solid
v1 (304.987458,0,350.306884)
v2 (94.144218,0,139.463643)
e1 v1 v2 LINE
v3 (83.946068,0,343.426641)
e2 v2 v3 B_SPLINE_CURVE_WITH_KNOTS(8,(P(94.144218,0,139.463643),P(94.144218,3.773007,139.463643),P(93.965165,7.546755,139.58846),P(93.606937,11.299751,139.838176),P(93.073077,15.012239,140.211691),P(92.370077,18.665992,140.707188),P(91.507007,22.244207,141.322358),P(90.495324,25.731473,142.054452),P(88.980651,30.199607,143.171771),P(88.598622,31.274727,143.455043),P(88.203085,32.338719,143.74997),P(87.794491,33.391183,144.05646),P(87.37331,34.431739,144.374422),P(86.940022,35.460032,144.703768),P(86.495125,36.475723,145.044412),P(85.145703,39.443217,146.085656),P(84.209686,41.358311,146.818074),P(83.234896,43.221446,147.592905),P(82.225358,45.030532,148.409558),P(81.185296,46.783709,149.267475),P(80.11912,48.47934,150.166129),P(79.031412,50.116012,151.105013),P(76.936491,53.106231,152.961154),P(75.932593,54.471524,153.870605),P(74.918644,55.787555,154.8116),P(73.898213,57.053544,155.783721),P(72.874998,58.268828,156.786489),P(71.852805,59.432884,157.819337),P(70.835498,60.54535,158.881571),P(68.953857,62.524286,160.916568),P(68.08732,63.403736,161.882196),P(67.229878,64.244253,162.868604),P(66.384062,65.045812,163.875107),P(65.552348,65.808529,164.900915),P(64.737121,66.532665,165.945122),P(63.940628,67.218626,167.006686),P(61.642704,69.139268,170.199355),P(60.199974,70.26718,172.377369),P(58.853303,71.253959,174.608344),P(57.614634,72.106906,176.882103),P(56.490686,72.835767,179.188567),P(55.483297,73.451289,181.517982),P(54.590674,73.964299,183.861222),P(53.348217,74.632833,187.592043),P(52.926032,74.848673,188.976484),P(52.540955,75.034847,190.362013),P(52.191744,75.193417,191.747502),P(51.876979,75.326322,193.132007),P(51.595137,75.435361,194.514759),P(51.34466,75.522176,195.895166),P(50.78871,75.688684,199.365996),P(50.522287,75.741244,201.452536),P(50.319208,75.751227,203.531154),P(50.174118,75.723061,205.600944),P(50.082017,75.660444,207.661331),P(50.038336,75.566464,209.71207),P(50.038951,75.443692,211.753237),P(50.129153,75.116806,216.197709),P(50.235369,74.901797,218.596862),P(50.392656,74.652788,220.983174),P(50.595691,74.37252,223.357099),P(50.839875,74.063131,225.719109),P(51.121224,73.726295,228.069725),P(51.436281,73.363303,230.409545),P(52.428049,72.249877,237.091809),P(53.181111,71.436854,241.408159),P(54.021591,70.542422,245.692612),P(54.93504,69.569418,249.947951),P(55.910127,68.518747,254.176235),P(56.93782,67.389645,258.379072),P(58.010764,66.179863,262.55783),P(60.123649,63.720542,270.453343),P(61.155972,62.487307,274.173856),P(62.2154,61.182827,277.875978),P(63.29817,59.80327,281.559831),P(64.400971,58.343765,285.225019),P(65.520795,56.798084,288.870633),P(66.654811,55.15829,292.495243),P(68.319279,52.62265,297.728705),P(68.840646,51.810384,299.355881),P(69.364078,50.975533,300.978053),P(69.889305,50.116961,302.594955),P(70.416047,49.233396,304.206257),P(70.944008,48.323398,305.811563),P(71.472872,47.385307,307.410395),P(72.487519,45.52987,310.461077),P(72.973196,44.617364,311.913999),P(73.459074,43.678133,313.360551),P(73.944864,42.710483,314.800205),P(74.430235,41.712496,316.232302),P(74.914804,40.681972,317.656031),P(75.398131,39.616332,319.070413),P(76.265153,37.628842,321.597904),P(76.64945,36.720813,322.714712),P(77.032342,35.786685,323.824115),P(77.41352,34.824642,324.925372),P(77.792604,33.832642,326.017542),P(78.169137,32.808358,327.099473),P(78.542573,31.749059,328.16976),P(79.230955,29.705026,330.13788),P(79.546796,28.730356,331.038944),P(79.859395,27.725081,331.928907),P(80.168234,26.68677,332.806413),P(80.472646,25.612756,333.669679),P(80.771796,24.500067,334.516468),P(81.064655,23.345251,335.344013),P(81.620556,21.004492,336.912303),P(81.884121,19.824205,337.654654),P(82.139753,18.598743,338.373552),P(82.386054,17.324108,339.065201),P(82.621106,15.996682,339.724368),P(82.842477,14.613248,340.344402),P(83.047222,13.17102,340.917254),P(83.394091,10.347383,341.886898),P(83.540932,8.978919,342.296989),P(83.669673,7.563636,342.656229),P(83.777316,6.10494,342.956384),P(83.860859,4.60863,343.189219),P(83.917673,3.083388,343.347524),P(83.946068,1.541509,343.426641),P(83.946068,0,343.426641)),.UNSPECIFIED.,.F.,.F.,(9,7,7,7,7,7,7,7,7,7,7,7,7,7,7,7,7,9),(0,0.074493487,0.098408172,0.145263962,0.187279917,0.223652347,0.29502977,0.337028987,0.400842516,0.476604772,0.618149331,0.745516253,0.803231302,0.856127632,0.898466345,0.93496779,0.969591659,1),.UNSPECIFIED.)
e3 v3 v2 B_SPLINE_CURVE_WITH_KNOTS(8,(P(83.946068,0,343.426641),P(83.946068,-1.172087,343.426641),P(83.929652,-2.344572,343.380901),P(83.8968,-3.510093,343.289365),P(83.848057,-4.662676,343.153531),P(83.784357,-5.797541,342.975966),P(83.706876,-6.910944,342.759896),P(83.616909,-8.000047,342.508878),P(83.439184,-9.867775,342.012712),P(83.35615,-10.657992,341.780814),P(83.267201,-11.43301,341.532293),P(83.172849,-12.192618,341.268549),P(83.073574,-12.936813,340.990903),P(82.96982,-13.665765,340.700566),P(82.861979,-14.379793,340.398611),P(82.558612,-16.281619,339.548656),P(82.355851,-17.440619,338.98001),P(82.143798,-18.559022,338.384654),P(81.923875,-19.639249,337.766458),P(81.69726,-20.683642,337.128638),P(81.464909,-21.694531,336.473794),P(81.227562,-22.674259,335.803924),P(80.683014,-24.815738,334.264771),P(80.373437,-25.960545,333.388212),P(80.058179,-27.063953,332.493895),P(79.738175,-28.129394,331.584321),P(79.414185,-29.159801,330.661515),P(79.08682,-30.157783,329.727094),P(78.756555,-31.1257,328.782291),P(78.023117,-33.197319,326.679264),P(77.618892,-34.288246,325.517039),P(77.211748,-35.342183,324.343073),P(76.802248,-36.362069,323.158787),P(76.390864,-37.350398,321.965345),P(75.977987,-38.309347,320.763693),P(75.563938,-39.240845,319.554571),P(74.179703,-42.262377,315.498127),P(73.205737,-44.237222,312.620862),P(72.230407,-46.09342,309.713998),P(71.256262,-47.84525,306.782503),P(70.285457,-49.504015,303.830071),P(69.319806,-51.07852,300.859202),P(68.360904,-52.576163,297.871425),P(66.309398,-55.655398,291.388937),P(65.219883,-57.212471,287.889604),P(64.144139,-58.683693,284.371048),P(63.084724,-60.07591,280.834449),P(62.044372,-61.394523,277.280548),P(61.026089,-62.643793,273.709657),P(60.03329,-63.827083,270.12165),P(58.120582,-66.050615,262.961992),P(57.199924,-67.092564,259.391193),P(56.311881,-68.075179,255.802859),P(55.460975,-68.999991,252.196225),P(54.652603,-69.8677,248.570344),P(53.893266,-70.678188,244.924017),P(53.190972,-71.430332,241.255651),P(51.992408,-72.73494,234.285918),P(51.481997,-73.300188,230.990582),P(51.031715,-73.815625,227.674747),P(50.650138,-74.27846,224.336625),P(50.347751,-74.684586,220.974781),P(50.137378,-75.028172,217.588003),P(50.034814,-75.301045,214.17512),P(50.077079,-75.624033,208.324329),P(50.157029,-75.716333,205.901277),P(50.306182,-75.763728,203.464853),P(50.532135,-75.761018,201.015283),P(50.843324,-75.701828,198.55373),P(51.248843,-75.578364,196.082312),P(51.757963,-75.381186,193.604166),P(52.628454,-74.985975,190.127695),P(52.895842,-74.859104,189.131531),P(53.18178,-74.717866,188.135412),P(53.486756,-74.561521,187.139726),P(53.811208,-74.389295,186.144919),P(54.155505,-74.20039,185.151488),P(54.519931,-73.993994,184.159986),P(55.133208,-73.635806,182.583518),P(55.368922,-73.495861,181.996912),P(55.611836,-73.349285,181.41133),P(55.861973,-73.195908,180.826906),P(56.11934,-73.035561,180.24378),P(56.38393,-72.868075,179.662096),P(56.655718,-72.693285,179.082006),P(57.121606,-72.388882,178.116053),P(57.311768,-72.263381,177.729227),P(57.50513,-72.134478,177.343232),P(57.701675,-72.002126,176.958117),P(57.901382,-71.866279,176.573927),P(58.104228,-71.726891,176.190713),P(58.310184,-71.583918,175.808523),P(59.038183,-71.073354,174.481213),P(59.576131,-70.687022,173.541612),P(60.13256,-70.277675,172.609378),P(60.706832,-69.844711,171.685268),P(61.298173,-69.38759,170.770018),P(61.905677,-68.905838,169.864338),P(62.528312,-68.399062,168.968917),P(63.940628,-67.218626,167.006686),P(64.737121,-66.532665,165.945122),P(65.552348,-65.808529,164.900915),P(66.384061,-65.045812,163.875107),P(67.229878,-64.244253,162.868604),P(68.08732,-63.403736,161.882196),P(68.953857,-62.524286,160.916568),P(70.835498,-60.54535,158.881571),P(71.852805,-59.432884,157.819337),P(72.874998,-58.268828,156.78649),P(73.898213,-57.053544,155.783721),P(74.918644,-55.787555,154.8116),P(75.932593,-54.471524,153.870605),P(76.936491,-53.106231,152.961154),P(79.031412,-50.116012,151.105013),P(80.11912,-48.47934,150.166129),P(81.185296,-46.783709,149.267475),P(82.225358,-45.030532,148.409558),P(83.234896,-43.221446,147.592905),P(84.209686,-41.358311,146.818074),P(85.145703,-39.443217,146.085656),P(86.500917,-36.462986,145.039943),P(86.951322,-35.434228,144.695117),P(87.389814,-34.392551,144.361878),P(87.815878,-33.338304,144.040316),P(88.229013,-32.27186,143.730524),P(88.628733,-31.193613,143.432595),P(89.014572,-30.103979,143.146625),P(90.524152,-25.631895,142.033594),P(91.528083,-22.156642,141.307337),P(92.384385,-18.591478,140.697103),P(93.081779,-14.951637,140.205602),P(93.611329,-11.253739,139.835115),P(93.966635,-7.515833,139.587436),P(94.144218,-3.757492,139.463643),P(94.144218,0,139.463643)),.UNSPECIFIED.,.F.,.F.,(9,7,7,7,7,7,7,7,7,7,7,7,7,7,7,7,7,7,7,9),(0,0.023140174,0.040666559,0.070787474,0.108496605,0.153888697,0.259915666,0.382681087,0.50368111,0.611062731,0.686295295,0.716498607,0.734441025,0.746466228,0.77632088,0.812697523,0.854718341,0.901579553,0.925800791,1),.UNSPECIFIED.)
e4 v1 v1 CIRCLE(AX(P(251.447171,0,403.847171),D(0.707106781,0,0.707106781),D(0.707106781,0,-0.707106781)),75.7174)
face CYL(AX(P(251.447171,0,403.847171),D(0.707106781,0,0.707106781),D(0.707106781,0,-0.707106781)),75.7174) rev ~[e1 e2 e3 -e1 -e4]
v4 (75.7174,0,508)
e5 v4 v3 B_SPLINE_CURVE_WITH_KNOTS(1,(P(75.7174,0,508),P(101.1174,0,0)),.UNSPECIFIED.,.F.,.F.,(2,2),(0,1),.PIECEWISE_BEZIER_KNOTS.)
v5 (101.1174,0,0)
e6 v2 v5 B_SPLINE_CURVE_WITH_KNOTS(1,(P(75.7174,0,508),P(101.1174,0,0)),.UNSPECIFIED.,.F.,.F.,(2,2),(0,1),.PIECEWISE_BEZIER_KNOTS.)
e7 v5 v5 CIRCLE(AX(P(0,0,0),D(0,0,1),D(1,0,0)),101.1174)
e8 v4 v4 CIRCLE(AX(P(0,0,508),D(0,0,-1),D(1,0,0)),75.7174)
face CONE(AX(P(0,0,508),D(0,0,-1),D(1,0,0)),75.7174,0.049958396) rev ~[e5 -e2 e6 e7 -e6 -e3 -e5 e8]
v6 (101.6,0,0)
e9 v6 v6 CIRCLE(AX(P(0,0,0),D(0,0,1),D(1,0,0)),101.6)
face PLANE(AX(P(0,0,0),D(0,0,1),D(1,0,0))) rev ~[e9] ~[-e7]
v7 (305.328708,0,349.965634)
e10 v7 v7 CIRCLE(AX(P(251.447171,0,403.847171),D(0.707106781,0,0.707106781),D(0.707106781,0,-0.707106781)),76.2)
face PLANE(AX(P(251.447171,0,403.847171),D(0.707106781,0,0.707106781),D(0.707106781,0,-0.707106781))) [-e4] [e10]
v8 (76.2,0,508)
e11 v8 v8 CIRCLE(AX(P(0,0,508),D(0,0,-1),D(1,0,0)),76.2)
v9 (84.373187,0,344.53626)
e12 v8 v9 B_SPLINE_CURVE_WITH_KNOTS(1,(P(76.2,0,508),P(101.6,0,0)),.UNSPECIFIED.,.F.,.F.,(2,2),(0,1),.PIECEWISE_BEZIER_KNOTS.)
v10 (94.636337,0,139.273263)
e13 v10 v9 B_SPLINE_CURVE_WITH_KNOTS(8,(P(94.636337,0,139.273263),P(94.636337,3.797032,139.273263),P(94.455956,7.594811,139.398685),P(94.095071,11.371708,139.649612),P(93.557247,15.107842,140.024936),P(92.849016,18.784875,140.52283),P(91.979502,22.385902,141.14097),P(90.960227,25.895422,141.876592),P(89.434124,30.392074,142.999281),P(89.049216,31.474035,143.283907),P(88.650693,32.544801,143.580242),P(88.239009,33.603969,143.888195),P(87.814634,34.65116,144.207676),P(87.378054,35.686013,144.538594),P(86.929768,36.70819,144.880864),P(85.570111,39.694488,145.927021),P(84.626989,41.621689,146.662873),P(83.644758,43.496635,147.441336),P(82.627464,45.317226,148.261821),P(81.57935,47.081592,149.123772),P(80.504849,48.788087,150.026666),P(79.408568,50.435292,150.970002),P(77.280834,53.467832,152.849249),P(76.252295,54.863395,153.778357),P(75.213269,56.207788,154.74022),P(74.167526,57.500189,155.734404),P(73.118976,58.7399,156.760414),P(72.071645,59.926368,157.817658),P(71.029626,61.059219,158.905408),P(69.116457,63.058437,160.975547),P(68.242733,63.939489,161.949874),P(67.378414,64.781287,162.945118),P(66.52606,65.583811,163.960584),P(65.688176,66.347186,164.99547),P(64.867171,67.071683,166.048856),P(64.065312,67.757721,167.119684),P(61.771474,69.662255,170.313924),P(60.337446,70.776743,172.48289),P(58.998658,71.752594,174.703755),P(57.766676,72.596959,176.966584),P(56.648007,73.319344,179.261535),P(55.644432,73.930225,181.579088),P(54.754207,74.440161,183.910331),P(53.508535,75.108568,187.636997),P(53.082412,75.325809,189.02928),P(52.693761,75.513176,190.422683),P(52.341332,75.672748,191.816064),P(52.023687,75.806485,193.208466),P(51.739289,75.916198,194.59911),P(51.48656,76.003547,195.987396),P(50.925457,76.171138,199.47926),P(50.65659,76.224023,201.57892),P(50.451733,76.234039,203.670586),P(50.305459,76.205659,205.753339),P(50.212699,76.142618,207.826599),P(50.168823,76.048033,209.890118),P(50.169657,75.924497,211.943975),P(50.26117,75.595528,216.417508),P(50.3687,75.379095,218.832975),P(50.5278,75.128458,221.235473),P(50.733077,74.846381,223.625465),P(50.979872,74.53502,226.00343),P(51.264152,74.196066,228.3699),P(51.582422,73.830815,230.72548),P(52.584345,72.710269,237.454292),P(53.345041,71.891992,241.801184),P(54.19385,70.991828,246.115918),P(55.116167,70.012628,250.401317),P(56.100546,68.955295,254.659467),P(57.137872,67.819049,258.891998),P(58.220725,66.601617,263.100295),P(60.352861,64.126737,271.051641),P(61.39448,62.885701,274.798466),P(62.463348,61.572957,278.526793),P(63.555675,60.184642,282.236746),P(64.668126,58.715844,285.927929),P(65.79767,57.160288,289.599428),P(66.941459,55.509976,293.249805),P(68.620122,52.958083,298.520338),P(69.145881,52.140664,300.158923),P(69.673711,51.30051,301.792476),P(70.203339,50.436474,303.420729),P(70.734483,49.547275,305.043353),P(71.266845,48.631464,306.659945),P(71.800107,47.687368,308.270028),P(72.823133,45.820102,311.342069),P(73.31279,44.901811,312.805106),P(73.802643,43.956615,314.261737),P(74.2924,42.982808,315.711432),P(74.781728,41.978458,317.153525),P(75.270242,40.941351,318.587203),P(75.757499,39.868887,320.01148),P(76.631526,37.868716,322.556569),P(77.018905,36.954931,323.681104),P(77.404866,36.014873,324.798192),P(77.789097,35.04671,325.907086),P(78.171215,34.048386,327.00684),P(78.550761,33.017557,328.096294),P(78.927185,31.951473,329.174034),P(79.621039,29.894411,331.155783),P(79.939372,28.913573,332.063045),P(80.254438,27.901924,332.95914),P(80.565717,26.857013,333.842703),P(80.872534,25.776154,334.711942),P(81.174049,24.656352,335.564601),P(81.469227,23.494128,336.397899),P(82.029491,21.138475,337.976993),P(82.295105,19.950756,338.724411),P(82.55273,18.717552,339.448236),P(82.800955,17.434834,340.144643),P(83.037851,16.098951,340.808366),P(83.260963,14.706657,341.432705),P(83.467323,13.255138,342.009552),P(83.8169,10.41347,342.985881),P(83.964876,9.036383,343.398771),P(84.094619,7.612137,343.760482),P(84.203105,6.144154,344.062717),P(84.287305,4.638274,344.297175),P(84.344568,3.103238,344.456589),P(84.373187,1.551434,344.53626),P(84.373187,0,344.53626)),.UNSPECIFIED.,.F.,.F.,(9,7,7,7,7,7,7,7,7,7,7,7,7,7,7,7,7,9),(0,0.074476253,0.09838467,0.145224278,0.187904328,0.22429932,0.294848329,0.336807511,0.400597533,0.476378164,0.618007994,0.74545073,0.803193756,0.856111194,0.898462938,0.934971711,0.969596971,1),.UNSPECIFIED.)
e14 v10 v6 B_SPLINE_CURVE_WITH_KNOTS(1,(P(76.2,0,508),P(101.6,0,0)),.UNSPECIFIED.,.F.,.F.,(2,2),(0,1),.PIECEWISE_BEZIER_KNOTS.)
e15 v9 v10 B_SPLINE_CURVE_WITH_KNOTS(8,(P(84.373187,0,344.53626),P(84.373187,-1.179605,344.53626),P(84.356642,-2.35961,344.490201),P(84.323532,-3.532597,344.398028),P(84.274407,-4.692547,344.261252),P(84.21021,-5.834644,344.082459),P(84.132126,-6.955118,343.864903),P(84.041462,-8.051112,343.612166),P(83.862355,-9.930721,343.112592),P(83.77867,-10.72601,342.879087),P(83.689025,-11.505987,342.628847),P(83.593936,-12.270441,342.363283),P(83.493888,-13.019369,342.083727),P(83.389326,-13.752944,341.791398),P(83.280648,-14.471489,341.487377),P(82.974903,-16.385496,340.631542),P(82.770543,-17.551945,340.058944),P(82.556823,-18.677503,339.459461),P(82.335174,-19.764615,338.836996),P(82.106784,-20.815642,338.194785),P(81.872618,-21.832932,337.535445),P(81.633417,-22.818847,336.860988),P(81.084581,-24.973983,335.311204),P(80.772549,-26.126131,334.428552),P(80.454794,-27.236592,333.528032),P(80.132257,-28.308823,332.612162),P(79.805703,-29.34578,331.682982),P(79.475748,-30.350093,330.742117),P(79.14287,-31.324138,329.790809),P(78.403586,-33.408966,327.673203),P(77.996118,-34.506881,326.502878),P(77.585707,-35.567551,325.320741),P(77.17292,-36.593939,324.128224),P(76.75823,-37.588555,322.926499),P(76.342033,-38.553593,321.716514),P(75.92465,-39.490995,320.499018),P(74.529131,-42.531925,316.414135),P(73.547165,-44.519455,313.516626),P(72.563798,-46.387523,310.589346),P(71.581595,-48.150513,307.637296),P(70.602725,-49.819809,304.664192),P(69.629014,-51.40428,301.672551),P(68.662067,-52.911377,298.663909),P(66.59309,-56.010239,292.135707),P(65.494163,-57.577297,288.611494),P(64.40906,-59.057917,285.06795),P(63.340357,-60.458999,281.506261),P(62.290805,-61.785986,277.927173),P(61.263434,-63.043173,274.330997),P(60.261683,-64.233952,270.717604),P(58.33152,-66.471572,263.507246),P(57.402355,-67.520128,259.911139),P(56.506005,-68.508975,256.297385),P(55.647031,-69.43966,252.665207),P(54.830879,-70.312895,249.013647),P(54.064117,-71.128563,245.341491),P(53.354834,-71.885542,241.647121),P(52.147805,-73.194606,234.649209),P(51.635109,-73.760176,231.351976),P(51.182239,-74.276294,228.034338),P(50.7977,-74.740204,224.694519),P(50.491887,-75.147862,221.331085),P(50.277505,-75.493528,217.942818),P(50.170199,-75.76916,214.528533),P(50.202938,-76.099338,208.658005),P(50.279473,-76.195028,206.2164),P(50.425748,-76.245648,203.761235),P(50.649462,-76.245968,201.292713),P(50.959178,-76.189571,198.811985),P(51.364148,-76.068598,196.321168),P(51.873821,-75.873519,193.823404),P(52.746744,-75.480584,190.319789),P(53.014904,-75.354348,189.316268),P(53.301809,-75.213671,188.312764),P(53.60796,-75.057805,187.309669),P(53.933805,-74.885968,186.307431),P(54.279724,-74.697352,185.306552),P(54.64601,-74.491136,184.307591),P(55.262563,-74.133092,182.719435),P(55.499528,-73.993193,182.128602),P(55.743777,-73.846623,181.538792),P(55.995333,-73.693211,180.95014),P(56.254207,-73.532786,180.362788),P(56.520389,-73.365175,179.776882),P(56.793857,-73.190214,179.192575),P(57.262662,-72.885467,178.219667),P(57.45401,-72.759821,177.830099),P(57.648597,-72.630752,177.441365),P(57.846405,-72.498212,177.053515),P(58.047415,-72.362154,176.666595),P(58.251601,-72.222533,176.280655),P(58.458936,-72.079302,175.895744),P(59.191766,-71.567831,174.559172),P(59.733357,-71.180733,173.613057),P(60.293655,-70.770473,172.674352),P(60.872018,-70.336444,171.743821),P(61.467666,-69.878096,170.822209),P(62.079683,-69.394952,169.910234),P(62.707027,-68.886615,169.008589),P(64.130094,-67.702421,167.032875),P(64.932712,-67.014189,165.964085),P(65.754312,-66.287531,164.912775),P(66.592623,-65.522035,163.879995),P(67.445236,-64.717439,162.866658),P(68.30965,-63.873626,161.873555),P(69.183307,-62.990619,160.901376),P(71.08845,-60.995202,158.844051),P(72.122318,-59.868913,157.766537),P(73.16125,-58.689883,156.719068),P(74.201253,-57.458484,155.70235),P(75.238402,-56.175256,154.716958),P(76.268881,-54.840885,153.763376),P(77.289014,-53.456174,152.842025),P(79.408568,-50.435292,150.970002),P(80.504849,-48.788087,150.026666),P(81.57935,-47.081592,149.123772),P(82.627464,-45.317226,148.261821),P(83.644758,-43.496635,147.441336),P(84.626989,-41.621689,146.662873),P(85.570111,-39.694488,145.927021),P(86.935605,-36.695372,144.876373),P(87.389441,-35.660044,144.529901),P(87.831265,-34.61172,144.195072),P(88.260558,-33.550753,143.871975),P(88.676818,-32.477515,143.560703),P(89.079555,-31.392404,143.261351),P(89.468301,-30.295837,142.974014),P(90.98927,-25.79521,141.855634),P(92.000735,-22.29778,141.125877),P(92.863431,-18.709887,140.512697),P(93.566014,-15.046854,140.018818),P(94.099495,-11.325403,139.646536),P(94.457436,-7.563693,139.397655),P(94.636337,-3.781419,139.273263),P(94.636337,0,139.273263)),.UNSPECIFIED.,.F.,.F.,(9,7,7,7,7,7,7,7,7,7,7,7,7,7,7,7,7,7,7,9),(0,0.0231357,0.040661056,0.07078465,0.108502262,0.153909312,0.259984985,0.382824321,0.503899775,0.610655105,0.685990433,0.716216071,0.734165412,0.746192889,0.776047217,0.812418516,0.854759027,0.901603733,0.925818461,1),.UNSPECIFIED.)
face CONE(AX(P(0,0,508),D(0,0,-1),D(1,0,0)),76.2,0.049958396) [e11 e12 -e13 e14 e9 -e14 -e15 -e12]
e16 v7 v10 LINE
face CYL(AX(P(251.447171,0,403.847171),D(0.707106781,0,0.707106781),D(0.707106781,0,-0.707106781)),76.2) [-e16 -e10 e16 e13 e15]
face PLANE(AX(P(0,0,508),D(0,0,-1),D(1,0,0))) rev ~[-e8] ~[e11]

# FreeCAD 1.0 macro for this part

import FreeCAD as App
import Part
import Sketcher
from FreeCAD import Vector
Q = App.Units.Quantity

doc = App.newDocument("Part")
body = doc.addObject("PartDesign::Body", "Body")

# Sketch on XY plane
sketch1 = body.newObject("Sketcher::SketchObject", "Sketch")
sketch1.AttachmentSupport = (doc.getObject("XY_Plane"), [""])
sketch1.MapMode = "FlatFace"
sketch1.AttachmentOffset = App.Placement(Vector(0, 0, 20 * 25.4), App.Rotation())
sketch1.addGeometry(Part.Circle(Vector(0, 0, 0), Vector(0, 0, 1), 76.2), False)
sketch1.addConstraint([
    Sketcher.Constraint("Coincident", 0, 3, -1, 1),
    Sketcher.Constraint("Diameter", 0, Q("6 in")),
])

# Sketch on XY plane
sketch2 = body.newObject("Sketcher::SketchObject", "Sketch001")
sketch2.AttachmentSupport = (doc.getObject("XY_Plane"), [""])
sketch2.MapMode = "FlatFace"
sketch2.addGeometry(Part.Circle(Vector(0, 0, 0), Vector(0, 0, 1), 101.6), False)
sketch2.addConstraint([
    Sketcher.Constraint("Coincident", 0, 3, -1, 1),
    Sketcher.Constraint("Diameter", 0, Q("8 in")),
])

additiveloft = body.newObject("PartDesign::AdditiveLoft", "AdditiveLoft")
additiveloft.Profile = sketch1
additiveloft.Sections = [sketch2]

# Sketch on an angled plane
sketch3 = body.newObject("Sketcher::SketchObject", "Sketch002")
sketch3.Placement = App.Placement(Vector(327.647171, 0, 327.647171), App.Rotation(Vector(0.707106781, 0, -0.707106781), Vector(0, 0.999999999, 0), Vector(0.707106781, 0, 0.707106781), "ZXY"))
sketch3.addGeometry(Part.Circle(Vector(-107.763073, 0, 0), Vector(0, 0, 1), 76.2), False)
sketch3.addConstraint([
    Sketcher.Constraint("PointOnObject", 0, 3, -1),
    Sketcher.Constraint("Diameter", 0, Q("6 in")),
    Sketcher.Constraint("DistanceX", 0, 3, -1, 1, Q("107.763073 mm")),
])
pad1 = body.newObject("PartDesign::Pad", "Pad")
pad1.Profile = sketch3
pad1.Length = Q("12 in")
pad1.Reversed = True

# Sketch on an angled plane
sketch4 = body.newObject("Sketcher::SketchObject", "Sketch003")
sketch4.Placement = App.Placement(Vector(327.647171, 0, 327.647171), App.Rotation(Vector(0.707106781, 0, -0.707106781), Vector(0, 0.999999999, 0), Vector(0.707106781, 0, 0.707106781), "ZXY"))
sketch4.addGeometry(Part.Circle(Vector(-107.763073, 0, 0), Vector(0, 0, 1), 75.7174), False)
sketch4.addConstraint([
    Sketcher.Constraint("PointOnObject", 0, 3, -1),
    Sketcher.Constraint("Diameter", 0, Q("5.962 in")),
    Sketcher.Constraint("DistanceX", 0, 3, -1, 1, Q("107.763073 mm")),
])
pocket1 = body.newObject("PartDesign::Pocket", "Pocket")
pocket1.Profile = sketch4
pocket1.Length = Q("12 in")

# Sketch on XY plane
sketch5 = body.newObject("Sketcher::SketchObject", "Sketch004")
sketch5.AttachmentSupport = (doc.getObject("XY_Plane"), [""])
sketch5.MapMode = "FlatFace"
sketch5.AttachmentOffset = App.Placement(Vector(0, 0, 20 * 25.4), App.Rotation())
sketch5.addGeometry(Part.Circle(Vector(0, 0, 0), Vector(0, 0, 1), 75.7174), False)
sketch5.addConstraint([
    Sketcher.Constraint("Coincident", 0, 3, -1, 1),
    Sketcher.Constraint("Diameter", 0, Q("5.962 in")),
])

# Sketch on XY plane
sketch6 = body.newObject("Sketcher::SketchObject", "Sketch005")
sketch6.AttachmentSupport = (doc.getObject("XY_Plane"), [""])
sketch6.MapMode = "FlatFace"
sketch6.addGeometry(Part.Circle(Vector(0, 0, 0), Vector(0, 0, 1), 101.1174), False)
sketch6.addConstraint([
    Sketcher.Constraint("Coincident", 0, 3, -1, 1),
    Sketcher.Constraint("Diameter", 0, Q("7.962 in")),
])

subtractiveloft = body.newObject("PartDesign::SubtractiveLoft", "SubtractiveLoft")
subtractiveloft.Profile = sketch5
subtractiveloft.Sections = [sketch6]

doc.recompute()
